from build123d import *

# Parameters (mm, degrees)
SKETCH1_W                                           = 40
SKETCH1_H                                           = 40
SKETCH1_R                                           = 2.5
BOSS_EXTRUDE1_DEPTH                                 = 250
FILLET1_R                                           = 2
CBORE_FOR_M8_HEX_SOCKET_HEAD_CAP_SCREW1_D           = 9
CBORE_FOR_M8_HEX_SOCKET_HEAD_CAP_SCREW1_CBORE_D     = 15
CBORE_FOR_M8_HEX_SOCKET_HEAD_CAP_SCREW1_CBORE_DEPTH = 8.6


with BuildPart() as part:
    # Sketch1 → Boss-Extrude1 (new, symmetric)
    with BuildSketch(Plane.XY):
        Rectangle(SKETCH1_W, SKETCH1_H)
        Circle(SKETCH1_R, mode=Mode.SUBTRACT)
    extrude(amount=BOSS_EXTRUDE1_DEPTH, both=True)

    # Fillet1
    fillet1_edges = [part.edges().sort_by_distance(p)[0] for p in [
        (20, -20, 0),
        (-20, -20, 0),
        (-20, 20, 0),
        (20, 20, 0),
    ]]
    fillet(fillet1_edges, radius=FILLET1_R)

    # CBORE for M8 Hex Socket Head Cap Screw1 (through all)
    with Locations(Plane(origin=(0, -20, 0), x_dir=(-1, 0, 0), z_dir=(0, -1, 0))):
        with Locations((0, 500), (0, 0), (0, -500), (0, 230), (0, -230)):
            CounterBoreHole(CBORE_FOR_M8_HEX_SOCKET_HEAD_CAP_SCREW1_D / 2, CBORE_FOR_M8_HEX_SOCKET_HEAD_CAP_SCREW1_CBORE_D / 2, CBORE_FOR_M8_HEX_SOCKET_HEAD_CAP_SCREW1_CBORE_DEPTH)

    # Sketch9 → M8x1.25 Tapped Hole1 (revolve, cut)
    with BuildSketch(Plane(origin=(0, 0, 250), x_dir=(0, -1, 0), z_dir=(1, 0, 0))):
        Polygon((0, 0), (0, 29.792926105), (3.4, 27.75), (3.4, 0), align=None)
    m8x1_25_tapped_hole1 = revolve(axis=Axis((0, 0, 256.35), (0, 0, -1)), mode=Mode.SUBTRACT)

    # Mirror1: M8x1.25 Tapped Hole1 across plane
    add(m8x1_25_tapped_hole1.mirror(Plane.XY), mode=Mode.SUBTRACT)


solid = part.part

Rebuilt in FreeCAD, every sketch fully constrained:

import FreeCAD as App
import Part
import Sketcher
from FreeCAD import Vector
Q = App.Units.Quantity


def edges_at(feature, points):
    """Names of the edges that pass closest to the given points."""
    edges = feature.Shape.Edges
    near = lambda p: min(range(len(edges)), key=lambda i: edges[i].distToShape(Part.Vertex(*p))[0])
    return sorted({f"Edge{near(p) + 1}" for p in points})


def add_polygon(sketch, points):
    """Adds a closed chain of lines whose ends are joined by coincident constraints."""
    first, n = sketch.GeometryCount, len(points)
    for a, b in zip(points, points[1:] + points[:1]):
        sketch.addGeometry(Part.LineSegment(App.Vector(*a, 0), App.Vector(*b, 0)), False)
    for i in range(n):
        sketch.addConstraint(Sketcher.Constraint("Coincident", first + i, 2, first + (i + 1) % n, 1))

doc = App.newDocument("Part")
body = doc.addObject("PartDesign::Body", "Body")

# Sketch on XY plane
sketch1 = body.newObject("Sketcher::SketchObject", "Sketch")
sketch1.AttachmentSupport = (doc.getObject("XY_Plane"), [""])
sketch1.MapMode = "FlatFace"
add_polygon(sketch1, [(-20, 20), (-20, -20), (20, -20), (20, 20)])  # lines 0-3
sketch1.addGeometry(Part.Circle(Vector(0, 0, 0), Vector(0, 0, 1), 2.5), False)  # 4
sketch1.addConstraint([
    Sketcher.Constraint("Vertical", 0),
    Sketcher.Constraint("Horizontal", 1),
    Sketcher.Constraint("Vertical", 2),
    Sketcher.Constraint("Horizontal", 3),
    Sketcher.Constraint("Coincident", 4, 3, -1, 1),
    Sketcher.Constraint("Symmetric", 0, 2, 2, 2, -1, 1),
    Sketcher.Constraint("Equal", 3, 0),
    Sketcher.Constraint("Diameter", 4, 5.0),
    Sketcher.Constraint("DistanceX", 1, 1, 1, 2, 40.0),
])
pad1 = body.newObject("PartDesign::Pad", "Pad")
pad1.Profile = sketch1
pad1.Length = 500
pad1.Midplane = True
doc.recompute()

fillet = body.newObject("PartDesign::Fillet", "Fillet")
fillet.Base = (pad1, edges_at(pad1, [
    (20, -20, 0),
    (-20, -20, 0),
    (-20, 20, 0),
    (20, 20, 0),
]))
fillet.Radius = 2

# Sketch on XZ plane
sketch2 = body.newObject("Sketcher::SketchObject", "Sketch001")
sketch2.AttachmentSupport = (doc.getObject("XZ_Plane"), [""])
sketch2.MapMode = "FlatFace"
sketch2.AttachmentOffset = App.Placement(Vector(0, 0, 20), App.Rotation())
sketch2.addGeometry([
    Part.Circle(Vector(0, -500, 0), Vector(0, 0, 1), 4.5),  # 0
    Part.Circle(Vector(0, 0, 0), Vector(0, 0, 1), 4.5),  # 1
    Part.Circle(Vector(0, 500, 0), Vector(0, 0, 1), 4.5),  # 2
    Part.Circle(Vector(0, -230, 0), Vector(0, 0, 1), 4.5),  # 3
    Part.Circle(Vector(0, 230, 0), Vector(0, 0, 1), 4.5),  # 4
], False)
sketch2.addConstraint([
    Sketcher.Constraint("Coincident", 1, 3, -1, 1),
    Sketcher.Constraint("Equal", 0, 1),
    Sketcher.Constraint("Equal", 1, 2),
    Sketcher.Constraint("Equal", 2, 3),
    Sketcher.Constraint("Equal", 3, 4),
    Sketcher.Constraint("Symmetric", 0, 3, 2, 3, -1, 1),
    Sketcher.Constraint("Symmetric", 3, 3, 4, 3, -1, 1),
    Sketcher.Constraint("PointOnObject", 0, 3, -2),
    Sketcher.Constraint("PointOnObject", 3, 3, -2),
    Sketcher.Constraint("Diameter", 0, 9.0),
    Sketcher.Constraint("DistanceY", 0, 3, -1, 1, 500.0),
    Sketcher.Constraint("DistanceY", 3, 3, -1, 1, 230.0),
])
doc.recompute()
hole = body.newObject("PartDesign::Hole", "Hole")
hole.Profile = sketch2
hole.ThreadType = "None"
hole.Diameter = 9
hole.DepthType = "ThroughAll"
hole.HoleCutType = "Counterbore"
hole.HoleCutDiameter = 15
hole.HoleCutDepth = 8.6

# Sketch on YZ plane
sketch3 = body.newObject("Sketcher::SketchObject", "Sketch002")
sketch3.AttachmentSupport = (doc.getObject("YZ_Plane"), [""])
sketch3.MapMode = "FlatFace"
add_polygon(sketch3, [(0, 220.2), (0, 250), (-3.4, 250), (-3.4, 222.2)])  # lines 0-3
sketch3.addConstraint([
    Sketcher.Constraint("Vertical", 0),
    Sketcher.Constraint("Horizontal", 1),
    Sketcher.Constraint("Vertical", 2),
    Sketcher.Constraint("PointOnObject", 0, 2, -2),
    Sketcher.Constraint("Angle", 3, Q("-31 deg")),
    Sketcher.Constraint("DistanceX", 1, 2, 1, 1, 3.4),
    Sketcher.Constraint("DistanceY", -1, 1, 0, 2, 250.0),
    Sketcher.Constraint("DistanceY", 2, 2, 2, 1, 27.75),
])
groove = body.newObject("PartDesign::Groove", "Groove")
groove.Profile = sketch3
groove.ReferenceAxis = (sketch3, ["V_Axis"])
groove.Angle = 360
doc.recompute()

mirrored = body.newObject("PartDesign::Mirrored", "Mirrored")
mirrored.Originals = [groove]
mirrored.MirrorPlane = (doc.getObject("XY_Plane"), [""])
body.Tip = mirrored

doc.recompute()
